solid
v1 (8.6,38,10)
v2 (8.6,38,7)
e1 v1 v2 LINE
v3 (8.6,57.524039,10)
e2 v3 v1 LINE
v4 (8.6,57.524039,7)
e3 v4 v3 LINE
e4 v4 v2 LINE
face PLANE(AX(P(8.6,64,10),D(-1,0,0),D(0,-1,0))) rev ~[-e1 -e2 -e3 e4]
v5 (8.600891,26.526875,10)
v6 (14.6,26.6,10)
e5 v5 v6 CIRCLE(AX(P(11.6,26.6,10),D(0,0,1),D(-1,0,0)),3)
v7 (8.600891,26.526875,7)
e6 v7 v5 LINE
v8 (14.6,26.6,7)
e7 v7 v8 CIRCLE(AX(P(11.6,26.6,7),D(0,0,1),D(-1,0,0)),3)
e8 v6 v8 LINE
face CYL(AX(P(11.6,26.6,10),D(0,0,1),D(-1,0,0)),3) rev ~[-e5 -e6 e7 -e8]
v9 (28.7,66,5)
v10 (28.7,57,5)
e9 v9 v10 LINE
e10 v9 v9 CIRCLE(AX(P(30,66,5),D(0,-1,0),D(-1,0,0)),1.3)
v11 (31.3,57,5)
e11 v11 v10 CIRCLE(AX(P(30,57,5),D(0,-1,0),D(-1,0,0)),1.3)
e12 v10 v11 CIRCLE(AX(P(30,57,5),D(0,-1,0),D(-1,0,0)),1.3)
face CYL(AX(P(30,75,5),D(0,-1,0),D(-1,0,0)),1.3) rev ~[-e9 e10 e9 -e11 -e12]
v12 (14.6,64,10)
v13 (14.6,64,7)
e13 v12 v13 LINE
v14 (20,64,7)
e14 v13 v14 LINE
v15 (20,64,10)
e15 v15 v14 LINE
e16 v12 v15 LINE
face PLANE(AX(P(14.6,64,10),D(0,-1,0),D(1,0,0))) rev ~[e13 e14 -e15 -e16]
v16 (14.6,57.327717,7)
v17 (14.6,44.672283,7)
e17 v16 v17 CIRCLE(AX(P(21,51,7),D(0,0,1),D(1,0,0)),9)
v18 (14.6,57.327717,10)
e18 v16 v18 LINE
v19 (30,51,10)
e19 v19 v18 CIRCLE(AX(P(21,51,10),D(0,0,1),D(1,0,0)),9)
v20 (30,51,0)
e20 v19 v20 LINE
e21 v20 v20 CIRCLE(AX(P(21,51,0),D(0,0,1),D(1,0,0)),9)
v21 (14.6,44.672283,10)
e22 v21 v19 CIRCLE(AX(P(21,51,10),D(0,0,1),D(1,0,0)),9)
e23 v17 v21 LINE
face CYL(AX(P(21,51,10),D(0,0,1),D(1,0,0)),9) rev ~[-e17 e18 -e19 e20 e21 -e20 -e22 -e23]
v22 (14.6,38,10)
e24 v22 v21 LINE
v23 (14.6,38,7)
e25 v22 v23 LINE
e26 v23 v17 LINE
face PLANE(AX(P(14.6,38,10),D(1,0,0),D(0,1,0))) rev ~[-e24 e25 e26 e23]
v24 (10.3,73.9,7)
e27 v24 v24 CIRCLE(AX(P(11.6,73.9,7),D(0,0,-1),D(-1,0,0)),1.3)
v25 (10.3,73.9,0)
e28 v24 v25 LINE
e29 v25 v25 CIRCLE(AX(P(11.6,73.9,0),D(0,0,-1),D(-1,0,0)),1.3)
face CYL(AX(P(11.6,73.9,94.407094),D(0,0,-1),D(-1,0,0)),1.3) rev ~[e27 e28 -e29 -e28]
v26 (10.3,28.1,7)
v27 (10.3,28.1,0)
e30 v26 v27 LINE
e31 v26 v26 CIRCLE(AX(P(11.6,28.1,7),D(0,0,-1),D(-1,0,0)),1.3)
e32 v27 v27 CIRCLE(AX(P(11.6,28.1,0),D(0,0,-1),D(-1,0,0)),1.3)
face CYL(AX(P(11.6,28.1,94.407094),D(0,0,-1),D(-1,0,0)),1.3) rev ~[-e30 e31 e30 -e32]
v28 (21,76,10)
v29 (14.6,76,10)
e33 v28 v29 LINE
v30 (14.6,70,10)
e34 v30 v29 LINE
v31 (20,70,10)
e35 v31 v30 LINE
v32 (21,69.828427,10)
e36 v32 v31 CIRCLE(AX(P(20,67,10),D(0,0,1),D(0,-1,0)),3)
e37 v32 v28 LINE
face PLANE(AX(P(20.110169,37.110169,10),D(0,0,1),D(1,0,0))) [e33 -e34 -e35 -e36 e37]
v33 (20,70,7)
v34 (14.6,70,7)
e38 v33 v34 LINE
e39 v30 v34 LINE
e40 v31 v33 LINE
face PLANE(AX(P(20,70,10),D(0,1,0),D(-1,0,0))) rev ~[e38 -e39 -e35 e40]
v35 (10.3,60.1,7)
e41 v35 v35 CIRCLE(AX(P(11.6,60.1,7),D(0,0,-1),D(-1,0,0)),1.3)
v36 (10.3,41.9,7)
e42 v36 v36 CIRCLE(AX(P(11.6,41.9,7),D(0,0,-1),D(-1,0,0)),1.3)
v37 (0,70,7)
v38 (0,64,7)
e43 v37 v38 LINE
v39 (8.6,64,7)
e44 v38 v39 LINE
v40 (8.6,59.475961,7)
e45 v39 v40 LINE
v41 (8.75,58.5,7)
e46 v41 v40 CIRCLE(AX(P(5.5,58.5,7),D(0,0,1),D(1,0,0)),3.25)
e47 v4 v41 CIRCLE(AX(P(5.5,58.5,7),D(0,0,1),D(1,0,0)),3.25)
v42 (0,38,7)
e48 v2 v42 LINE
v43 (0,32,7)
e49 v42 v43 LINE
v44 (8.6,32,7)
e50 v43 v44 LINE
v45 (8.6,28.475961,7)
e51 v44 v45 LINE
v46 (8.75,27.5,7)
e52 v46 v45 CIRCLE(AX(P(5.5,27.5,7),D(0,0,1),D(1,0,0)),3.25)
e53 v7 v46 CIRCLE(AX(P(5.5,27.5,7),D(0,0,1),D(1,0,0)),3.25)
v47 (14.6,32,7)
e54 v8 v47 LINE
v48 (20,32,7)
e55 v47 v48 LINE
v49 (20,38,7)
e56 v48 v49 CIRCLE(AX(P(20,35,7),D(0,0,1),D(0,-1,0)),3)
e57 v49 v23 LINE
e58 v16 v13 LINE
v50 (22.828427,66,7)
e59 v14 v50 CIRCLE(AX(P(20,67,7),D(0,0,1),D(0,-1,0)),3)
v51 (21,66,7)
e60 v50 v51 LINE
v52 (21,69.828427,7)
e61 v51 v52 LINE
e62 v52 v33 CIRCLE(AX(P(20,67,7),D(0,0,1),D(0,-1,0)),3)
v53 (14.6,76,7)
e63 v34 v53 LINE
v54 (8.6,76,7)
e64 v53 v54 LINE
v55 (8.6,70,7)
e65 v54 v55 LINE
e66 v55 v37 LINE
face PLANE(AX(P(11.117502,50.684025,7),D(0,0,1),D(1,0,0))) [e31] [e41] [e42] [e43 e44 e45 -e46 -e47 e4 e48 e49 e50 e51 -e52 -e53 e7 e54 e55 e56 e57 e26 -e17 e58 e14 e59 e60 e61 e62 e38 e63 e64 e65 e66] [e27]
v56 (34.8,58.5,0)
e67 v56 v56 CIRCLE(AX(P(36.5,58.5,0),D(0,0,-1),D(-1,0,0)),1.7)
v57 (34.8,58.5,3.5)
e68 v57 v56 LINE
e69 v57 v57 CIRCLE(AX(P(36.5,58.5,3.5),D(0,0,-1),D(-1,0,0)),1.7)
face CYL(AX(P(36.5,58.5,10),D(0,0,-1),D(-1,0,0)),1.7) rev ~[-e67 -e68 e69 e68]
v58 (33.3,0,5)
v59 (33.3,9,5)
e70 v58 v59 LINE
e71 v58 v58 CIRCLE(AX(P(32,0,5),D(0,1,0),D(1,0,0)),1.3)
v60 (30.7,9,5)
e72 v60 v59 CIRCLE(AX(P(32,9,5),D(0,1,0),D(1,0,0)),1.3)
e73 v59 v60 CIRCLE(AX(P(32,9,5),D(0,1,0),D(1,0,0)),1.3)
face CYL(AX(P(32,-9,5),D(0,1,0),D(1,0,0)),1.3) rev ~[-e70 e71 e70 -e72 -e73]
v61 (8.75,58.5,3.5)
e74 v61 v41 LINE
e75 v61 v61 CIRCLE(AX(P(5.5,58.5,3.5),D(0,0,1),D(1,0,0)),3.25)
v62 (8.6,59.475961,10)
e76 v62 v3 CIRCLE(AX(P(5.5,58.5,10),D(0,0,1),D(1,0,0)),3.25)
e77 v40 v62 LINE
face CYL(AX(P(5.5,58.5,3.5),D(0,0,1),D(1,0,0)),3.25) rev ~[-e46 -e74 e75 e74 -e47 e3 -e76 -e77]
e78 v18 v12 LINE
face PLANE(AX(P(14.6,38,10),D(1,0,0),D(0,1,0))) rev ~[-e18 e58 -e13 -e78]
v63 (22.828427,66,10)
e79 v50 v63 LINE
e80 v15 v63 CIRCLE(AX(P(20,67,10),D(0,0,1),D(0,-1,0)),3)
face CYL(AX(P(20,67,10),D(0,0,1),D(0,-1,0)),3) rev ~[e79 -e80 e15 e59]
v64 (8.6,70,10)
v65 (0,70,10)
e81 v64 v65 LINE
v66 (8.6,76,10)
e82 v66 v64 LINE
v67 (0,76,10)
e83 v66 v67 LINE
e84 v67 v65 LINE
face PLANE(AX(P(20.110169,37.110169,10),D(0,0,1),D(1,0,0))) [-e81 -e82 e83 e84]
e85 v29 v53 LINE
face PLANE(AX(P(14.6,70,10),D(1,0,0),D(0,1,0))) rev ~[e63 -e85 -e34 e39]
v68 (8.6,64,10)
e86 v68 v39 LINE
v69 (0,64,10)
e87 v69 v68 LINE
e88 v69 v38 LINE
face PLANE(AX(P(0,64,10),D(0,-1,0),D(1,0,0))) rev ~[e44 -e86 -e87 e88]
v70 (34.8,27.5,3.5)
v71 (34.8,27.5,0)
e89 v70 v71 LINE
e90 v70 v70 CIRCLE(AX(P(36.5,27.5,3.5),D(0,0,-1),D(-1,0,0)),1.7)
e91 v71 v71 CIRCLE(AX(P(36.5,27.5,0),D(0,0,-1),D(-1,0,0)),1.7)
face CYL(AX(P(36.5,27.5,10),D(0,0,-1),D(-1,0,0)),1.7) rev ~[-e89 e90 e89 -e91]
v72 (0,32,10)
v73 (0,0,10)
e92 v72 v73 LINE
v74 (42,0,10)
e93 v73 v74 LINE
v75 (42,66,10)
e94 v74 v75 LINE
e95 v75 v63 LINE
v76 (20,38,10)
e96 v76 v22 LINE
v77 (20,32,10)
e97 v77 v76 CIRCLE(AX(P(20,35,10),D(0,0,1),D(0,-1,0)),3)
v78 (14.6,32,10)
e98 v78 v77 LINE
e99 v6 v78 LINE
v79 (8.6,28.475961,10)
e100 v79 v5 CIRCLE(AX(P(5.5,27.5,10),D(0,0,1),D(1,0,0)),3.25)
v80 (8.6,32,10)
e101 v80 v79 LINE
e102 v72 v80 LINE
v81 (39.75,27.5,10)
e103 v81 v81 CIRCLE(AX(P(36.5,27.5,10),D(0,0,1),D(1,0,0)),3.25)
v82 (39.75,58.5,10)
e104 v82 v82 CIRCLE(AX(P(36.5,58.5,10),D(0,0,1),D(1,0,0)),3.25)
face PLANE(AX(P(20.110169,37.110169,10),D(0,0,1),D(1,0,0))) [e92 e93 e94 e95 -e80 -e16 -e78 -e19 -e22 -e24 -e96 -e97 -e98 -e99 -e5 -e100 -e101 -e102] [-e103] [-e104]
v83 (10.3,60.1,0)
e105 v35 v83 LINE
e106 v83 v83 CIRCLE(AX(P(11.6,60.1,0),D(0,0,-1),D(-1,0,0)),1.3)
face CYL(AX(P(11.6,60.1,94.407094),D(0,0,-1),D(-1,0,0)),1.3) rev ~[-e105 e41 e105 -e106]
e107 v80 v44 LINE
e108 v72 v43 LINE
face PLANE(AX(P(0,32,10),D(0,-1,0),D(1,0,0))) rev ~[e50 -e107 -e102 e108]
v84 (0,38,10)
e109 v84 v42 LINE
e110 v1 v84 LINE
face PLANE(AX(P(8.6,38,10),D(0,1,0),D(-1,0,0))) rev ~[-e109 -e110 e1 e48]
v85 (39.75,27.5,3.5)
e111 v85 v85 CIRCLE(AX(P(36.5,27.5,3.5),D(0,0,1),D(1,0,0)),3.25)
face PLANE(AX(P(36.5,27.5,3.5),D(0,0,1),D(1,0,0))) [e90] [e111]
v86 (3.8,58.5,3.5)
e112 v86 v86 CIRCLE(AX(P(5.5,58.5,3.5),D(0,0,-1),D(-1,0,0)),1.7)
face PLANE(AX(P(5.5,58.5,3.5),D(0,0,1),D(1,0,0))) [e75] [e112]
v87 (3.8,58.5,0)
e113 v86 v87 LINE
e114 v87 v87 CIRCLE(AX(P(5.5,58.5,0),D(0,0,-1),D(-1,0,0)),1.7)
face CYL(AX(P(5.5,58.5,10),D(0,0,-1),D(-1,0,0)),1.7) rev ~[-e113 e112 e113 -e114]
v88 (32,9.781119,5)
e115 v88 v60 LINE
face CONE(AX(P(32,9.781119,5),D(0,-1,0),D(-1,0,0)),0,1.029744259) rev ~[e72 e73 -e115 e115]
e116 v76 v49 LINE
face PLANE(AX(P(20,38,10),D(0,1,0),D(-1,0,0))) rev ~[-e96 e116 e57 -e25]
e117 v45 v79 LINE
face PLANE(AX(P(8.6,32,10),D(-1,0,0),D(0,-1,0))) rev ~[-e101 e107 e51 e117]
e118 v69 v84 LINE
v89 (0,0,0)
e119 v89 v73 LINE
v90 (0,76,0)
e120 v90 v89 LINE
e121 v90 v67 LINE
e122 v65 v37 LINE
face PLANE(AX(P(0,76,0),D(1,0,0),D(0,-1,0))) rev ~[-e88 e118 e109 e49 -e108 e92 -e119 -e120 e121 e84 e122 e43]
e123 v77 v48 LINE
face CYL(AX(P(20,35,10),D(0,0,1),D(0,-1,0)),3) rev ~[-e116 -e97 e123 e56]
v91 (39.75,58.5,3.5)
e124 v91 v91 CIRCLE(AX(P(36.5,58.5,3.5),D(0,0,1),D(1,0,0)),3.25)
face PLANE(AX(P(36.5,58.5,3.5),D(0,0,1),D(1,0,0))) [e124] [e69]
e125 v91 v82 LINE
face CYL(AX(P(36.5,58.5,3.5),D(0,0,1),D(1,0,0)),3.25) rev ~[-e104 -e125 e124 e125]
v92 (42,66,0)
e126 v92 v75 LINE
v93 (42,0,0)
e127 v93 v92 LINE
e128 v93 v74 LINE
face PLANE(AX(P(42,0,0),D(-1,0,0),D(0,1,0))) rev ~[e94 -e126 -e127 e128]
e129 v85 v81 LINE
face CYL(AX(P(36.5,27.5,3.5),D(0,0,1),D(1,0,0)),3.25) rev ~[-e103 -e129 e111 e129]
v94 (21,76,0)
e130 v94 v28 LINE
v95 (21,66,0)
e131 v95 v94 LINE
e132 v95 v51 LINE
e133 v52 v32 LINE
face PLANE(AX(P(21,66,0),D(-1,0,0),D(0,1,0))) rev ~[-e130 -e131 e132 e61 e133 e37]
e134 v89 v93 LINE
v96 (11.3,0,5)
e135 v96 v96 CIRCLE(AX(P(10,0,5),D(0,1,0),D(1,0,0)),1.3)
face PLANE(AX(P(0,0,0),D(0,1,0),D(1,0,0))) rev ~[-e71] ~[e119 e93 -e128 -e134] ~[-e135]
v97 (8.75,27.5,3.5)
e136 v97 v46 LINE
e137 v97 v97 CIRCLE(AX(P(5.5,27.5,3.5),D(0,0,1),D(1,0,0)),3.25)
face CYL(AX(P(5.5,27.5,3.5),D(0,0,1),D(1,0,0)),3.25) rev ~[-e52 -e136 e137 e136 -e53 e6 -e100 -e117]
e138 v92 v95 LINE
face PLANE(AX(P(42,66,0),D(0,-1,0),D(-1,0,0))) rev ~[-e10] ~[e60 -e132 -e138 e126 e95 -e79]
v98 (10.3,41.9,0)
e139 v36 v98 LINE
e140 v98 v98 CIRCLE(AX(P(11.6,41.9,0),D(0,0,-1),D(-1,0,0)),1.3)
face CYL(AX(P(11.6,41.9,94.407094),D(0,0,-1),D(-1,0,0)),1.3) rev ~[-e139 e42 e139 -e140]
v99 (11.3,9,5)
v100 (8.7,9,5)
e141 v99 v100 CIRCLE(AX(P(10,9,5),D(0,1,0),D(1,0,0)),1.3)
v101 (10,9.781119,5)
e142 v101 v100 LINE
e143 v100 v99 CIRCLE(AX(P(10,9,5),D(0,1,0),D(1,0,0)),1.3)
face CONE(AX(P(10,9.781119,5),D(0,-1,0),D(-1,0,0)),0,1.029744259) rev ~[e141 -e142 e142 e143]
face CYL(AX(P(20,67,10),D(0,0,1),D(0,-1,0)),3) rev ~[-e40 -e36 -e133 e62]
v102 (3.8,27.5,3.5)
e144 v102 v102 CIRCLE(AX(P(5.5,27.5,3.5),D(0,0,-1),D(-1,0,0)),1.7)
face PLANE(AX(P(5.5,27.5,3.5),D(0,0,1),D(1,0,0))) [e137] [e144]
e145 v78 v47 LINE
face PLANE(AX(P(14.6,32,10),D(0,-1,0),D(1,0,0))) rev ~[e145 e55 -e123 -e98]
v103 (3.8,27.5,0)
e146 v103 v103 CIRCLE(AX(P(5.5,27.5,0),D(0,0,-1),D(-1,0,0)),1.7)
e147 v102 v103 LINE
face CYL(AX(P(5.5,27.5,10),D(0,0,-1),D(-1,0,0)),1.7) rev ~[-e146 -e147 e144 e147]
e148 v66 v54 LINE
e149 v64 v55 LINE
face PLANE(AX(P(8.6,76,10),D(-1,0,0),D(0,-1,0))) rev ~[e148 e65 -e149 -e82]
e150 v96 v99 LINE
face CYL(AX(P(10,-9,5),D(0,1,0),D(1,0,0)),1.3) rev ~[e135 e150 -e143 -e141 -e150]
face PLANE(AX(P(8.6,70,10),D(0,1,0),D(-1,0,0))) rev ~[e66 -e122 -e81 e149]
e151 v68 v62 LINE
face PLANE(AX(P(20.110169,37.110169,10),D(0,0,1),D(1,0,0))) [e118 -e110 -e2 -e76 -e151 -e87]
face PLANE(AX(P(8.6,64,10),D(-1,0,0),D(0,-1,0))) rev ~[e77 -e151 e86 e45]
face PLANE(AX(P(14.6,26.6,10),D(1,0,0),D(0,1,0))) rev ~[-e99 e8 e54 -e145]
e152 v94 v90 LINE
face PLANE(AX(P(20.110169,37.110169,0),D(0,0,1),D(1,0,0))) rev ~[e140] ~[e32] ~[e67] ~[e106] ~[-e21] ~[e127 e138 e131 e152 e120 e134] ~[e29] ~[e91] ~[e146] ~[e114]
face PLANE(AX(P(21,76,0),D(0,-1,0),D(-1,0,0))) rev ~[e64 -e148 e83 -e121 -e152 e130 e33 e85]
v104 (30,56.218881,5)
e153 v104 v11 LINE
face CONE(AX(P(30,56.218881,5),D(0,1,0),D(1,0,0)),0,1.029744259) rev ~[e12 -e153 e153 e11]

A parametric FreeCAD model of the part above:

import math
import FreeCAD as App
import Part
import Sketcher

V = App.Vector

doc = App.newDocument("Part")
body = doc.addObject("PartDesign::Body", "Body")

sketch1 = body.newObject("Sketcher::SketchObject", "Sketch")
sketch1.AttachmentSupport = (doc.getObject("XY_Plane"), [""])
sketch1.MapMode = "FlatFace"
sketch1.addGeometry([
    Part.LineSegment(V(0, 0, 0), V(42, 0, 0)),
    Part.LineSegment(V(42, 0, 0), V(42, 66, 0)),
    Part.LineSegment(V(42, 66, 0), V(21, 66, 0)),
    Part.LineSegment(V(21, 66, 0), V(21, 76, 0)),
    Part.LineSegment(V(21, 76, 0), V(0, 76, 0)),
    Part.LineSegment(V(0, 76, 0), V(0, 0, 0)),
], False)
sketch1.addConstraint([
    Sketcher.Constraint("Coincident", 0, 2, 1, 1),
    Sketcher.Constraint("Coincident", 1, 2, 2, 1),
    Sketcher.Constraint("Coincident", 2, 2, 3, 1),
    Sketcher.Constraint("Coincident", 3, 2, 4, 1),
    Sketcher.Constraint("Coincident", 4, 2, 5, 1),
    Sketcher.Constraint("Coincident", 5, 2, 0, 1),
    Sketcher.Constraint("Horizontal", 0),
    Sketcher.Constraint("Vertical", 1),
    Sketcher.Constraint("Horizontal", 2),
    Sketcher.Constraint("Vertical", 3),
    Sketcher.Constraint("Horizontal", 4),
    Sketcher.Constraint("Vertical", 5),
    Sketcher.Constraint("Coincident", 5, 2, -1, 1),
    Sketcher.Constraint("Equal", 2, 4),
    Sketcher.Constraint("DistanceX", 0, 1, 0, 2, 42.0),
    Sketcher.Constraint("DistanceY", 1, 1, 1, 2, 66.0),
    Sketcher.Constraint("DistanceY", 3, 1, 3, 2, 10.0),
])
pad1 = body.newObject("PartDesign::Pad", "Pad")
pad1.Profile = sketch1
pad1.Length = 10

sketch2 = body.newObject("Sketcher::SketchObject", "Sketch001")
sketch2.AttachmentSupport = (doc.getObject("XY_Plane"), [""])
sketch2.MapMode = "FlatFace"
sketch2.AttachmentOffset = App.Placement(V(0, 0, 10), App.Rotation())
sketch2.addGeometry(Part.Circle(V(21, 51, 0), V(0, 0, 1), 9), False)
sketch2.addConstraint([
    Sketcher.Constraint("Diameter", 0, 18.0),
    Sketcher.Constraint("DistanceX", -1, 1, 0, 3, 21.0),
    Sketcher.Constraint("DistanceY", -1, 1, 0, 3, 51.0),
])
pocket1 = body.newObject("PartDesign::Pocket", "Pocket")
pocket1.Profile = sketch2
pocket1.Type = "UpToFirst"

sketch3 = body.newObject("Sketcher::SketchObject", "Sketch002")
sketch3.AttachmentSupport = (doc.getObject("XY_Plane"), [""])
sketch3.MapMode = "FlatFace"
sketch3.AttachmentOffset = App.Placement(V(0, 0, 10), App.Rotation())
sketch3.addGeometry([
    Part.LineSegment(V(8.6, 64, 0), V(8.6, 38, 0)),
    Part.LineSegment(V(8.6, 38, 0), V(0, 38, 0)),
    Part.LineSegment(V(0, 38, 0), V(0, 32, 0)),
    Part.LineSegment(V(0, 32, 0), V(8.6, 32, 0)),
    Part.LineSegment(V(8.6, 32, 0), V(8.6, 26.6, 0)),
    Part.ArcOfCircle(Part.Circle(V(11.6, 26.6, 0), V(0, 0, 1), 3), math.radians(180), math.radians(360)),
    Part.LineSegment(V(14.6, 26.6, 0), V(14.6, 32, 0)),
    Part.LineSegment(V(14.6, 32, 0), V(20, 32, 0)),
    Part.ArcOfCircle(Part.Circle(V(20, 35, 0), V(0, 0, 1), 3), math.radians(-90), math.radians(90)),
    Part.LineSegment(V(20, 38, 0), V(14.6, 38, 0)),
    Part.LineSegment(V(14.6, 38, 0), V(14.6, 64, 0)),
    Part.LineSegment(V(14.6, 64, 0), V(20, 64, 0)),
    Part.ArcOfCircle(Part.Circle(V(20, 67, 0), V(0, 0, 1), 3), math.radians(-90), math.radians(90)),
    Part.LineSegment(V(20, 70, 0), V(14.6, 70, 0)),
    Part.LineSegment(V(14.6, 70, 0), V(14.6, 76, 0)),
    Part.LineSegment(V(14.6, 76, 0), V(8.6, 76, 0)),
    Part.LineSegment(V(8.6, 76, 0), V(8.6, 70, 0)),
    Part.LineSegment(V(8.6, 70, 0), V(0, 70, 0)),
    Part.LineSegment(V(0, 70, 0), V(0, 64, 0)),
    Part.LineSegment(V(0, 64, 0), V(8.6, 64, 0)),
], False)
sketch3.addConstraint([
    Sketcher.Constraint("Coincident", 0, 2, 1, 1),
    Sketcher.Constraint("Coincident", 1, 2, 2, 1),
    Sketcher.Constraint("Coincident", 2, 2, 3, 1),
    Sketcher.Constraint("Coincident", 3, 2, 4, 1),
    Sketcher.Constraint("Tangent", 4, 2, 5, 1),
    Sketcher.Constraint("Tangent", 5, 2, 6, 1),
    Sketcher.Constraint("Coincident", 6, 2, 7, 1),
    Sketcher.Constraint("Tangent", 7, 2, 8, 1),
    Sketcher.Constraint("Tangent", 8, 2, 9, 1),
    Sketcher.Constraint("Coincident", 9, 2, 10, 1),
    Sketcher.Constraint("Coincident", 10, 2, 11, 1),
    Sketcher.Constraint("Tangent", 11, 2, 12, 1),
    Sketcher.Constraint("Tangent", 12, 2, 13, 1),
    Sketcher.Constraint("Coincident", 13, 2, 14, 1),
    Sketcher.Constraint("Coincident", 14, 2, 15, 1),
    Sketcher.Constraint("Coincident", 15, 2, 16, 1),
    Sketcher.Constraint("Coincident", 16, 2, 17, 1),
    Sketcher.Constraint("Coincident", 17, 2, 18, 1),
    Sketcher.Constraint("Coincident", 18, 2, 19, 1),
    Sketcher.Constraint("Coincident", 19, 2, 0, 1),
    Sketcher.Constraint("Vertical", 0),
    Sketcher.Constraint("Horizontal", 1),
    Sketcher.Constraint("Vertical", 2),
    Sketcher.Constraint("Horizontal", 3),
    Sketcher.Constraint("Vertical", 4),
    Sketcher.Constraint("Vertical", 6),
    Sketcher.Constraint("Horizontal", 7),
    Sketcher.Constraint("Horizontal", 9),
    Sketcher.Constraint("Vertical", 10),
    Sketcher.Constraint("Horizontal", 11),
    Sketcher.Constraint("Horizontal", 13),
    Sketcher.Constraint("Vertical", 14),
    Sketcher.Constraint("Horizontal", 15),
    Sketcher.Constraint("Vertical", 16),
    Sketcher.Constraint("Horizontal", 17),
    Sketcher.Constraint("Vertical", 18),
    Sketcher.Constraint("Horizontal", 19),
    Sketcher.Constraint("Equal", 5, 8),
    Sketcher.Constraint("Equal", 8, 12),
    Sketcher.Constraint("PointOnObject", 1, 2, -2),
    Sketcher.Constraint("PointOnObject", 17, 2, -2),
    Sketcher.Constraint("Horizontal", 3, 2, 6, 2),
    Sketcher.Constraint("Horizontal", 1, 2, 8, 2),
    Sketcher.Constraint("Horizontal", 13, 2, 16, 2),
    Sketcher.Constraint("Horizontal", 11, 2, 18, 2),
    Sketcher.Constraint("Vertical", 8, 3, 12, 3),
    Sketcher.Constraint("Vertical", 0, 2, 3, 2),
    Sketcher.Constraint("Vertical", 6, 2, 9, 2),
    Sketcher.Constraint("Vertical", 10, 2, 13, 2),
    Sketcher.Constraint("Vertical", 4, 2, 15, 2),
    Sketcher.Constraint("Equal", 13, 4),
    Sketcher.Constraint("Equal", 2, 14),
    Sketcher.Constraint("Radius", 5, 3.0),
    Sketcher.Constraint("DistanceY", 0, 2, 0, 1, 26.0),
    Sketcher.Constraint("DistanceX", 1, 2, 1, 1, 8.6),
    Sketcher.Constraint("DistanceX", 7, 1, 7, 2, 5.4),
    Sketcher.Constraint("DistanceY", -1, 1, 8, 3, 35.0),
])
pocket2 = body.newObject("PartDesign::Pocket", "Pocket001")
pocket2.Profile = sketch3
pocket2.Length = 3

sketch4 = body.newObject("Sketcher::SketchObject", "Sketch003")
sketch4.AttachmentSupport = (doc.getObject("XY_Plane"), [""])
sketch4.MapMode = "FlatFace"
sketch4.AttachmentOffset = App.Placement(V(0, 0, 10), App.Rotation())
sketch4.addGeometry([
    Part.Circle(V(5.5, 58.5, 0), V(0, 0, 1), 1.7),
    Part.Circle(V(36.5, 58.5, 0), V(0, 0, 1), 1.7),
    Part.Circle(V(5.5, 27.5, 0), V(0, 0, 1), 1.7),
    Part.Circle(V(36.5, 27.5, 0), V(0, 0, 1), 1.7),
], False)
sketch4.addConstraint([
    Sketcher.Constraint("Equal", 0, 1),
    Sketcher.Constraint("Equal", 1, 2),
    Sketcher.Constraint("Equal", 2, 3),
    Sketcher.Constraint("Horizontal", 0, 3, 1, 3),
    Sketcher.Constraint("Horizontal", 2, 3, 3, 3),
    Sketcher.Constraint("Vertical", 0, 3, 2, 3),
    Sketcher.Constraint("Vertical", 1, 3, 3, 3),
    Sketcher.Constraint("Diameter", 0, 3.4),
    Sketcher.Constraint("DistanceX", 0, 3, 1, 3, 31.0),
    Sketcher.Constraint("DistanceY", 2, 3, 0, 3, 31.0),
    Sketcher.Constraint("DistanceX", -1, 1, 0, 3, 5.5),
    Sketcher.Constraint("DistanceY", -1, 1, 0, 3, 58.5),
])
doc.recompute()
hole = body.newObject("PartDesign::Hole", "Hole")
hole.Profile = sketch4
hole.ThreadType = "None"
hole.Diameter = 3.4
hole.DepthType = "ThroughAll"
hole.HoleCutType = "Counterbore"
hole.HoleCutDiameter = 6.5
hole.HoleCutDepth = 6.5

sketch5 = body.newObject("Sketcher::SketchObject", "Sketch004")
sketch5.AttachmentSupport = (doc.getObject("XY_Plane"), [""])
sketch5.MapMode = "FlatFace"
sketch5.AttachmentOffset = App.Placement(V(0, 0, 7), App.Rotation())
sketch5.addGeometry([
    Part.Circle(V(11.6, 73.9, 0), V(0, 0, 1), 1.3),
    Part.Circle(V(11.6, 60.1, 0), V(0, 0, 1), 1.3),
    Part.Circle(V(11.6, 41.9, 0), V(0, 0, 1), 1.3),
    Part.Circle(V(11.6, 28.1, 0), V(0, 0, 1), 1.3),
], False)
sketch5.addConstraint([
    Sketcher.Constraint("Equal", 0, 1),
    Sketcher.Constraint("Equal", 1, 2),
    Sketcher.Constraint("Equal", 2, 3),
    Sketcher.Constraint("Vertical", 0, 3, 1, 3),
    Sketcher.Constraint("Vertical", 1, 3, 2, 3),
    Sketcher.Constraint("Vertical", 2, 3, 3, 3),
    Sketcher.Constraint("Diameter", 0, 2.6),
    Sketcher.Constraint("DistanceY", 2, 3, 0, 3, 32.0),
    Sketcher.Constraint("DistanceY", 3, 3, 1, 3, 32.0),
    Sketcher.Constraint("DistanceX", -1, 1, 0, 3, 11.6),
    Sketcher.Constraint("DistanceY", -1, 1, 0, 3, 73.9),
    Sketcher.Constraint("DistanceY", -1, 1, 1, 3, 60.1),
])
doc.recompute()
hole2 = body.newObject("PartDesign::Hole", "Hole001")
hole2.Profile = sketch5
hole2.ThreadType = "None"
hole2.Diameter = 2.6
hole2.DepthType = "ThroughAll"

sketch6 = body.newObject("Sketcher::SketchObject", "Sketch005")
sketch6.AttachmentSupport = (doc.getObject("XZ_Plane"), [""])
sketch6.MapMode = "FlatFace"
sketch6.addGeometry([
    Part.Circle(V(32, 5, 0), V(0, 0, 1), 1.3),
    Part.Circle(V(10, 5, 0), V(0, 0, 1), 1.3),
], False)
sketch6.addConstraint([
    Sketcher.Constraint("Equal", 0, 1),
    Sketcher.Constraint("Horizontal", 0, 3, 1, 3),
    Sketcher.Constraint("Diameter", 0, 2.6),
    Sketcher.Constraint("DistanceX", -1, 1, 0, 3, 32.0),
    Sketcher.Constraint("DistanceY", -1, 1, 0, 3, 5.0),
    Sketcher.Constraint("DistanceX", -1, 1, 1, 3, 10.0),
])
doc.recompute()
hole3 = body.newObject("PartDesign::Hole", "Hole002")
hole3.Profile = sketch6
hole3.ThreadType = "None"
hole3.Diameter = 2.6
hole3.DepthType = "Dimension"
hole3.Depth = 9
hole3.DrillPoint = "Angled"
hole3.DrillPointAngle = 118

sketch7 = body.newObject("Sketcher::SketchObject", "Sketch006")
sketch7.AttachmentSupport = (doc.getObject("XZ_Plane"), [""])
sketch7.MapMode = "FlatFace"
sketch7.AttachmentOffset = App.Placement(V(0, 0, -66), App.Rotation())
sketch7.addGeometry(Part.Circle(V(30, 5, 0), V(0, 0, 1), 1.3), False)
sketch7.addConstraint([
    Sketcher.Constraint("Diameter", 0, 2.6),
    Sketcher.Constraint("DistanceX", -1, 1, 0, 3, 30.0),
    Sketcher.Constraint("DistanceY", -1, 1, 0, 3, 5.0),
])
doc.recompute()
hole4 = body.newObject("PartDesign::Hole", "Hole003")
hole4.Profile = sketch7
hole4.ThreadType = "None"
hole4.Diameter = 2.6
hole4.DepthType = "Dimension"
hole4.Depth = 9
hole4.DrillPoint = "Angled"
hole4.DrillPointAngle = 118
hole4.Reversed = True

doc.recompute()
